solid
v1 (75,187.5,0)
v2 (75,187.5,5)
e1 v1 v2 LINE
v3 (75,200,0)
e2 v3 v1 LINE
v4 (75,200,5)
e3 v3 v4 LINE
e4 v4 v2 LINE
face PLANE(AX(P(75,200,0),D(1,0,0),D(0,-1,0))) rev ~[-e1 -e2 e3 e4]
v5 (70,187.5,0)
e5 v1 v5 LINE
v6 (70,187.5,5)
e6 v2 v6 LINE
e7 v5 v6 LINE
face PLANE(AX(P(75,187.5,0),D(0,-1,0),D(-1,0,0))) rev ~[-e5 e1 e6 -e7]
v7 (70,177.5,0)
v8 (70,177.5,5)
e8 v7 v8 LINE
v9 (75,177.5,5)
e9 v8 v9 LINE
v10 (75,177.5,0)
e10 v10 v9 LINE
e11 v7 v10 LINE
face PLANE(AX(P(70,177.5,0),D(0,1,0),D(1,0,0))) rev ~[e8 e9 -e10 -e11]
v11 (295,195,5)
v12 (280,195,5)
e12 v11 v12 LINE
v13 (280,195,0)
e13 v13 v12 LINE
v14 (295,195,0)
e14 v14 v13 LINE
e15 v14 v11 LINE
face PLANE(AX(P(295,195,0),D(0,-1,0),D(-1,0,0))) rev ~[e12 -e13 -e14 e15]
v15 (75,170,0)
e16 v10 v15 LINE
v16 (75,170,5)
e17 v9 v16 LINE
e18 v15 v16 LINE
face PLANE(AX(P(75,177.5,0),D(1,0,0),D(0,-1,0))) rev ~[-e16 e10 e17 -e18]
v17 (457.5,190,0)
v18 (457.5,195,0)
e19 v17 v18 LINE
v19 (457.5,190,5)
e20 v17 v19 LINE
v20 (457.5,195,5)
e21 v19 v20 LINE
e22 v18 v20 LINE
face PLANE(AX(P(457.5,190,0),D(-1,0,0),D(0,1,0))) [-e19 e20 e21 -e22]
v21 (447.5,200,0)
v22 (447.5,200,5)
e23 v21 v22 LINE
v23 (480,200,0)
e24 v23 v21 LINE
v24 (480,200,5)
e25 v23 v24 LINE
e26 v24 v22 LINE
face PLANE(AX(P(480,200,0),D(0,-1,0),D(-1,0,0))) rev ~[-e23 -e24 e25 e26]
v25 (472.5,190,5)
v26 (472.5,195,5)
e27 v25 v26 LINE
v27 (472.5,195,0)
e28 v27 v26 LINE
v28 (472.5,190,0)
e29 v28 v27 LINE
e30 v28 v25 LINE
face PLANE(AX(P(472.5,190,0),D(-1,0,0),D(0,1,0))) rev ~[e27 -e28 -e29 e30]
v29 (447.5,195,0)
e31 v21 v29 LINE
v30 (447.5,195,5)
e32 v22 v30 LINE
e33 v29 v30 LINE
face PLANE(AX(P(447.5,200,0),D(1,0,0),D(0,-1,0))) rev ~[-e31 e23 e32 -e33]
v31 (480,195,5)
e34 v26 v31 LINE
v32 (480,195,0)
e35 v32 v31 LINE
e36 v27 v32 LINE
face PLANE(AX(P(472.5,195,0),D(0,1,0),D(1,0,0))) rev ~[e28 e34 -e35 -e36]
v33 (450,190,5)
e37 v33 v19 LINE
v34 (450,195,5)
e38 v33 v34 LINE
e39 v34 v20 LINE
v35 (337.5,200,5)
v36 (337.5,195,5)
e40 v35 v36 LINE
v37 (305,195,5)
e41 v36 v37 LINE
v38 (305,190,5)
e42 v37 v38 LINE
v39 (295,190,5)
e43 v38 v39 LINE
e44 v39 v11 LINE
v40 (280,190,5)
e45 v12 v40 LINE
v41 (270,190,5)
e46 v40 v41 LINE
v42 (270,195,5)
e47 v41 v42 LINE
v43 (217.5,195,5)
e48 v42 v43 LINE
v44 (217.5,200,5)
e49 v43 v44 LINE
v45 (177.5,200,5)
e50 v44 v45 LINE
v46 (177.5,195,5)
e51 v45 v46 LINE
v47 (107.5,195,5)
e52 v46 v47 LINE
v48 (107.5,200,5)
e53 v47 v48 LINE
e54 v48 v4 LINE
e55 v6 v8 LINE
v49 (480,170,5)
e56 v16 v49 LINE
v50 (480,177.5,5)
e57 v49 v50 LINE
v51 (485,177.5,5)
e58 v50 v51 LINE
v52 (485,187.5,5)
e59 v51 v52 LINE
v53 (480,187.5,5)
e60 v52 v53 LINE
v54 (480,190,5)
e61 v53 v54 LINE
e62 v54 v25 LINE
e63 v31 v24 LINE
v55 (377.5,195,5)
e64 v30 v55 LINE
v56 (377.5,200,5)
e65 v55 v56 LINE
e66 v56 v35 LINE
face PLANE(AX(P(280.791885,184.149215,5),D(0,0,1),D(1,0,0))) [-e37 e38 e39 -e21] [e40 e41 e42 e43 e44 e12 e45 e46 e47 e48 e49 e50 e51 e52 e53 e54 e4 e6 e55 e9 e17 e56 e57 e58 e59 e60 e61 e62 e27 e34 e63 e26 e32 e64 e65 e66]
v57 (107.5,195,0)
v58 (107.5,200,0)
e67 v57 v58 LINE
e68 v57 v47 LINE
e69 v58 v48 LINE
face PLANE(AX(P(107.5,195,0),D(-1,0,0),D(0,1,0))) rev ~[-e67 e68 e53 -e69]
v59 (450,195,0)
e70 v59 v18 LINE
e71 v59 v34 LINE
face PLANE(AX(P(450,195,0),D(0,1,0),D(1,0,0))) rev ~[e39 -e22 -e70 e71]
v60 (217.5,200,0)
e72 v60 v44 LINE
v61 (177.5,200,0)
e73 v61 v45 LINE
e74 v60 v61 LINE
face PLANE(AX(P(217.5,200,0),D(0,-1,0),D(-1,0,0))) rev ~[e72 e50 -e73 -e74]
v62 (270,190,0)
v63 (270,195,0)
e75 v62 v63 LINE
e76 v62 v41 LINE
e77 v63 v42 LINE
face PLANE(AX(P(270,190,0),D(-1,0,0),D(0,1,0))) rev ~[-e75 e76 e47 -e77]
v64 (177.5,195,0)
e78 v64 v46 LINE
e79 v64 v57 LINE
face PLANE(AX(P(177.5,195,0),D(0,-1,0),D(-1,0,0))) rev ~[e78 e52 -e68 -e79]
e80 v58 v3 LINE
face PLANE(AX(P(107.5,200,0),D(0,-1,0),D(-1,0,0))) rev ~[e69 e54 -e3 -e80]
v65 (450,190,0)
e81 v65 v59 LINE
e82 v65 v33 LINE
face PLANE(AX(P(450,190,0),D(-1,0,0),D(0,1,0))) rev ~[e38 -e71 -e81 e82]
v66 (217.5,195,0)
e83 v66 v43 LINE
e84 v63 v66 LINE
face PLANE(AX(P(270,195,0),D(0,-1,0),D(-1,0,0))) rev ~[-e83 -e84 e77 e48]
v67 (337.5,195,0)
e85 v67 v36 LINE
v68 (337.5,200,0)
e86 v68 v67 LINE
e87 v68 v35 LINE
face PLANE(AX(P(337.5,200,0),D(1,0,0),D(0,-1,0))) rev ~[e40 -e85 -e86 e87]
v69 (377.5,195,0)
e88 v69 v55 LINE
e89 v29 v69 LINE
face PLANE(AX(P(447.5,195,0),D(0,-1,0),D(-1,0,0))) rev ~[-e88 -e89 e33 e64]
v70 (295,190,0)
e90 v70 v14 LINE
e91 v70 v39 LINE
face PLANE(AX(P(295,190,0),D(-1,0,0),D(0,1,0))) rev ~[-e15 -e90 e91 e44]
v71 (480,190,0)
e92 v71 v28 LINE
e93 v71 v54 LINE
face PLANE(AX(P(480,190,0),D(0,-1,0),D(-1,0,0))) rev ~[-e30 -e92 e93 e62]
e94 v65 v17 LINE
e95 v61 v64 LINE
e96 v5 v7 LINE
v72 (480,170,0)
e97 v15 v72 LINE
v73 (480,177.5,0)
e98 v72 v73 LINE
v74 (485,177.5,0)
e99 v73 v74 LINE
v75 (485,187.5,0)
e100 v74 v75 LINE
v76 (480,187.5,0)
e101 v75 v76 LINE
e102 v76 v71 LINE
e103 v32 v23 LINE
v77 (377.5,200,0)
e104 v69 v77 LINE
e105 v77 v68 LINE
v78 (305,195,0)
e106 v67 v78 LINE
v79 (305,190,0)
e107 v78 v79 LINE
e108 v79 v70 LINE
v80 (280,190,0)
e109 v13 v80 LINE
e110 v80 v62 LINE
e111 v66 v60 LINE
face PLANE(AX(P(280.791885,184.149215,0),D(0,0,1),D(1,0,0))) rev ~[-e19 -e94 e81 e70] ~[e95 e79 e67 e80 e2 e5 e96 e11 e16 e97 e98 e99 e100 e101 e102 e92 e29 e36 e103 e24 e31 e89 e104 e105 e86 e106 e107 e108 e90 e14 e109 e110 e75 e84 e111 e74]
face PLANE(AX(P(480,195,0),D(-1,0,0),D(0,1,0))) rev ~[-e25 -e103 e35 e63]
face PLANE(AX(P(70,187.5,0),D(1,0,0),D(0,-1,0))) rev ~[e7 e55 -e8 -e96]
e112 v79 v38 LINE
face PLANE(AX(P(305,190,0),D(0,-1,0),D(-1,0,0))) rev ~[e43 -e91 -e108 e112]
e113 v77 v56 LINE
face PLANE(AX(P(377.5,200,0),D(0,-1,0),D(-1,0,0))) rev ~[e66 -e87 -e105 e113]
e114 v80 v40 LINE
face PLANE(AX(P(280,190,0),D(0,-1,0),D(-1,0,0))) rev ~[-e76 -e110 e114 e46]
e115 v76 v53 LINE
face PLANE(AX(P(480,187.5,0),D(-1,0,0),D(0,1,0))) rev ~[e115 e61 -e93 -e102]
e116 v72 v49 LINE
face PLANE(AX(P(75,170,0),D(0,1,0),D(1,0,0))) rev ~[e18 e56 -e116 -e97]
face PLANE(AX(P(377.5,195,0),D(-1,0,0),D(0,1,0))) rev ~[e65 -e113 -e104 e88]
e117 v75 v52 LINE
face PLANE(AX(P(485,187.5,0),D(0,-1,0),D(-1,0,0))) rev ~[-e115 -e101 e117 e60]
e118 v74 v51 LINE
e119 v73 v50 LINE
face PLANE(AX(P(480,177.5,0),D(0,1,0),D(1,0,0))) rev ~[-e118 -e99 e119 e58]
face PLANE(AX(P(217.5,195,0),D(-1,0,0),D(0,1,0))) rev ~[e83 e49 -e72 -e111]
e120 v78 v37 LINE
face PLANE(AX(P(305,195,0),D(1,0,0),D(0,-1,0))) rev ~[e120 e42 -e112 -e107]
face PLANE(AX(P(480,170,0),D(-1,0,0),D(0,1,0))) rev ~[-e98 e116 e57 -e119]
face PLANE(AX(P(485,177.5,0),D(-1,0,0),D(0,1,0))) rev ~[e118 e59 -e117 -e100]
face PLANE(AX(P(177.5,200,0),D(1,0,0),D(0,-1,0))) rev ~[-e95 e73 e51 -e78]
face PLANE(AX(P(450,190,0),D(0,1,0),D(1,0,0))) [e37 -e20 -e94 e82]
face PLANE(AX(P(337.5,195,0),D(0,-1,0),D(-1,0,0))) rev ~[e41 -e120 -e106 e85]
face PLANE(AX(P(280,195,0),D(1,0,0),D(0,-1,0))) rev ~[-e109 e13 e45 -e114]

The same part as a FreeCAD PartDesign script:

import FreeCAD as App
import Part
import Sketcher
Q = App.Units.Quantity

doc = App.newDocument("Part")
params = doc.addObject("Spreadsheet::Sheet", "Params")
for row, (alias, value) in enumerate([
    ("sketch1_width", "5 mm"),
    ("sketch1_width2", "70 mm"),
    ("sketch1_width3", "40 mm"),
    ("sketch1_width4", "10 mm"),
    ("sketch1_width5", "15 mm"),
    ("pad1_length", "5 mm"),
], start=1):
    params.set(f"A{row}", alias)
    params.set(f"B{row}", "=" + value)
    params.setAlias(f"B{row}", alias)

body = doc.addObject("PartDesign::Body", "Body")

sketch1 = body.newObject("Sketcher::SketchObject", "Sketch")
sketch1.AttachmentSupport = (doc.getObject("XY_Plane"), [""])
sketch1.MapMode = "FlatFace"
sketch1.addGeometry(Part.LineSegment(App.Vector(480, 177.5, 0), App.Vector(485, 177.5, 0)), False)
sketch1.addGeometry(Part.LineSegment(App.Vector(485, 177.5, 0), App.Vector(485, 187.5, 0)), False)
sketch1.addGeometry(Part.LineSegment(App.Vector(485, 187.5, 0), App.Vector(480, 187.5, 0)), False)
sketch1.addGeometry(Part.LineSegment(App.Vector(480, 187.5, 0), App.Vector(480, 190, 0)), False)
sketch1.addGeometry(Part.LineSegment(App.Vector(480, 190, 0), App.Vector(472.5, 190, 0)), False)
sketch1.addGeometry(Part.LineSegment(App.Vector(472.5, 190, 0), App.Vector(472.5, 195, 0)), False)
sketch1.addGeometry(Part.LineSegment(App.Vector(472.5, 195, 0), App.Vector(480, 195, 0)), False)
sketch1.addGeometry(Part.LineSegment(App.Vector(480, 195, 0), App.Vector(480, 200, 0)), False)
sketch1.addGeometry(Part.LineSegment(App.Vector(480, 200, 0), App.Vector(447.5, 200, 0)), False)
sketch1.addGeometry(Part.LineSegment(App.Vector(447.5, 200, 0), App.Vector(447.5, 195, 0)), False)
sketch1.addGeometry(Part.LineSegment(App.Vector(447.5, 195, 0), App.Vector(377.5, 195, 0)), False)
sketch1.addGeometry(Part.LineSegment(App.Vector(377.5, 195, 0), App.Vector(377.5, 200, 0)), False)
sketch1.addGeometry(Part.LineSegment(App.Vector(377.5, 200, 0), App.Vector(337.5, 200, 0)), False)
sketch1.addGeometry(Part.LineSegment(App.Vector(337.5, 200, 0), App.Vector(337.5, 195, 0)), False)
sketch1.addGeometry(Part.LineSegment(App.Vector(337.5, 195, 0), App.Vector(305, 195, 0)), False)
sketch1.addGeometry(Part.LineSegment(App.Vector(305, 195, 0), App.Vector(305, 190, 0)), False)
sketch1.addGeometry(Part.LineSegment(App.Vector(305, 190, 0), App.Vector(295, 190, 0)), False)
sketch1.addGeometry(Part.LineSegment(App.Vector(295, 190, 0), App.Vector(295, 195, 0)), False)
sketch1.addGeometry(Part.LineSegment(App.Vector(295, 195, 0), App.Vector(280, 195, 0)), False)
sketch1.addGeometry(Part.LineSegment(App.Vector(280, 195, 0), App.Vector(280, 190, 0)), False)
sketch1.addGeometry(Part.LineSegment(App.Vector(280, 190, 0), App.Vector(270, 190, 0)), False)
sketch1.addGeometry(Part.LineSegment(App.Vector(270, 190, 0), App.Vector(270, 195, 0)), False)
sketch1.addGeometry(Part.LineSegment(App.Vector(270, 195, 0), App.Vector(217.5, 195, 0)), False)
sketch1.addGeometry(Part.LineSegment(App.Vector(217.5, 195, 0), App.Vector(217.5, 200, 0)), False)
sketch1.addGeometry(Part.LineSegment(App.Vector(217.5, 200, 0), App.Vector(177.5, 200, 0)), False)
sketch1.addGeometry(Part.LineSegment(App.Vector(177.5, 200, 0), App.Vector(177.5, 195, 0)), False)
sketch1.addGeometry(Part.LineSegment(App.Vector(177.5, 195, 0), App.Vector(107.5, 195, 0)), False)
sketch1.addGeometry(Part.LineSegment(App.Vector(107.5, 195, 0), App.Vector(107.5, 200, 0)), False)
sketch1.addGeometry(Part.LineSegment(App.Vector(107.5, 200, 0), App.Vector(75, 200, 0)), False)
sketch1.addGeometry(Part.LineSegment(App.Vector(75, 200, 0), App.Vector(75, 187.5, 0)), False)
sketch1.addGeometry(Part.LineSegment(App.Vector(75, 187.5, 0), App.Vector(70, 187.5, 0)), False)
sketch1.addGeometry(Part.LineSegment(App.Vector(70, 187.5, 0), App.Vector(70, 177.5, 0)), False)
sketch1.addGeometry(Part.LineSegment(App.Vector(70, 177.5, 0), App.Vector(75, 177.5, 0)), False)
sketch1.addGeometry(Part.LineSegment(App.Vector(75, 177.5, 0), App.Vector(75, 170, 0)), False)
sketch1.addGeometry(Part.LineSegment(App.Vector(75, 170, 0), App.Vector(480, 170, 0)), False)
sketch1.addGeometry(Part.LineSegment(App.Vector(480, 170, 0), App.Vector(480, 177.5, 0)), False)
sketch1.addGeometry(Part.LineSegment(App.Vector(457.5, 190, 0), App.Vector(450, 190, 0)), False)
sketch1.addGeometry(Part.LineSegment(App.Vector(450, 190, 0), App.Vector(450, 195, 0)), False)
sketch1.addGeometry(Part.LineSegment(App.Vector(450, 195, 0), App.Vector(457.5, 195, 0)), False)
sketch1.addGeometry(Part.LineSegment(App.Vector(457.5, 195, 0), App.Vector(457.5, 190, 0)), False)
sketch1.addConstraint(Sketcher.Constraint("Coincident", 0, 2, 1, 1))
sketch1.addConstraint(Sketcher.Constraint("Coincident", 1, 2, 2, 1))
sketch1.addConstraint(Sketcher.Constraint("Coincident", 2, 2, 3, 1))
sketch1.addConstraint(Sketcher.Constraint("Coincident", 3, 2, 4, 1))
sketch1.addConstraint(Sketcher.Constraint("Coincident", 4, 2, 5, 1))
sketch1.addConstraint(Sketcher.Constraint("Coincident", 5, 2, 6, 1))
sketch1.addConstraint(Sketcher.Constraint("Coincident", 6, 2, 7, 1))
sketch1.addConstraint(Sketcher.Constraint("Coincident", 7, 2, 8, 1))
sketch1.addConstraint(Sketcher.Constraint("Coincident", 8, 2, 9, 1))
sketch1.addConstraint(Sketcher.Constraint("Coincident", 9, 2, 10, 1))
sketch1.addConstraint(Sketcher.Constraint("Coincident", 10, 2, 11, 1))
sketch1.addConstraint(Sketcher.Constraint("Coincident", 11, 2, 12, 1))
sketch1.addConstraint(Sketcher.Constraint("Coincident", 12, 2, 13, 1))
sketch1.addConstraint(Sketcher.Constraint("Coincident", 13, 2, 14, 1))
sketch1.addConstraint(Sketcher.Constraint("Coincident", 14, 2, 15, 1))
sketch1.addConstraint(Sketcher.Constraint("Coincident", 15, 2, 16, 1))
sketch1.addConstraint(Sketcher.Constraint("Coincident", 16, 2, 17, 1))
sketch1.addConstraint(Sketcher.Constraint("Coincident", 17, 2, 18, 1))
sketch1.addConstraint(Sketcher.Constraint("Coincident", 18, 2, 19, 1))
sketch1.addConstraint(Sketcher.Constraint("Coincident", 19, 2, 20, 1))
sketch1.addConstraint(Sketcher.Constraint("Coincident", 20, 2, 21, 1))
sketch1.addConstraint(Sketcher.Constraint("Coincident", 21, 2, 22, 1))
sketch1.addConstraint(Sketcher.Constraint("Coincident", 22, 2, 23, 1))
sketch1.addConstraint(Sketcher.Constraint("Coincident", 23, 2, 24, 1))
sketch1.addConstraint(Sketcher.Constraint("Coincident", 24, 2, 25, 1))
sketch1.addConstraint(Sketcher.Constraint("Coincident", 25, 2, 26, 1))
sketch1.addConstraint(Sketcher.Constraint("Coincident", 26, 2, 27, 1))
sketch1.addConstraint(Sketcher.Constraint("Coincident", 27, 2, 28, 1))
sketch1.addConstraint(Sketcher.Constraint("Coincident", 28, 2, 29, 1))
sketch1.addConstraint(Sketcher.Constraint("Coincident", 29, 2, 30, 1))
sketch1.addConstraint(Sketcher.Constraint("Coincident", 30, 2, 31, 1))
sketch1.addConstraint(Sketcher.Constraint("Coincident", 31, 2, 32, 1))
sketch1.addConstraint(Sketcher.Constraint("Coincident", 32, 2, 33, 1))
sketch1.addConstraint(Sketcher.Constraint("Coincident", 33, 2, 34, 1))
sketch1.addConstraint(Sketcher.Constraint("Coincident", 34, 2, 35, 1))
sketch1.addConstraint(Sketcher.Constraint("Coincident", 35, 2, 0, 1))
sketch1.addConstraint(Sketcher.Constraint("Coincident", 36, 2, 37, 1))
sketch1.addConstraint(Sketcher.Constraint("Coincident", 37, 2, 38, 1))
sketch1.addConstraint(Sketcher.Constraint("Coincident", 38, 2, 39, 1))
sketch1.addConstraint(Sketcher.Constraint("Coincident", 39, 2, 36, 1))
sketch1.addConstraint(Sketcher.Constraint("Horizontal", 0))
sketch1.addConstraint(Sketcher.Constraint("Vertical", 1))
sketch1.addConstraint(Sketcher.Constraint("Horizontal", 2))
sketch1.addConstraint(Sketcher.Constraint("Vertical", 3))
sketch1.addConstraint(Sketcher.Constraint("Horizontal", 4))
sketch1.addConstraint(Sketcher.Constraint("Vertical", 5))
sketch1.addConstraint(Sketcher.Constraint("Horizontal", 6))
sketch1.addConstraint(Sketcher.Constraint("Vertical", 7))
sketch1.addConstraint(Sketcher.Constraint("Horizontal", 8))
sketch1.addConstraint(Sketcher.Constraint("Vertical", 9))
sketch1.addConstraint(Sketcher.Constraint("Horizontal", 10))
sketch1.addConstraint(Sketcher.Constraint("Vertical", 11))
sketch1.addConstraint(Sketcher.Constraint("Horizontal", 12))
sketch1.addConstraint(Sketcher.Constraint("Vertical", 13))
sketch1.addConstraint(Sketcher.Constraint("Horizontal", 14))
sketch1.addConstraint(Sketcher.Constraint("Vertical", 15))
sketch1.addConstraint(Sketcher.Constraint("Horizontal", 16))
sketch1.addConstraint(Sketcher.Constraint("Vertical", 17))
sketch1.addConstraint(Sketcher.Constraint("Horizontal", 18))
sketch1.addConstraint(Sketcher.Constraint("Vertical", 19))
sketch1.addConstraint(Sketcher.Constraint("Horizontal", 20))
sketch1.addConstraint(Sketcher.Constraint("Vertical", 21))
sketch1.addConstraint(Sketcher.Constraint("Horizontal", 22))
sketch1.addConstraint(Sketcher.Constraint("Vertical", 23))
sketch1.addConstraint(Sketcher.Constraint("Horizontal", 24))
sketch1.addConstraint(Sketcher.Constraint("Vertical", 25))
sketch1.addConstraint(Sketcher.Constraint("Horizontal", 26))
sketch1.addConstraint(Sketcher.Constraint("Vertical", 27))
sketch1.addConstraint(Sketcher.Constraint("Horizontal", 28))
sketch1.addConstraint(Sketcher.Constraint("Vertical", 29))
sketch1.addConstraint(Sketcher.Constraint("Horizontal", 30))
sketch1.addConstraint(Sketcher.Constraint("Vertical", 31))
sketch1.addConstraint(Sketcher.Constraint("Horizontal", 32))
sketch1.addConstraint(Sketcher.Constraint("Vertical", 33))
sketch1.addConstraint(Sketcher.Constraint("Horizontal", 34))
sketch1.addConstraint(Sketcher.Constraint("Vertical", 35))
sketch1.addConstraint(Sketcher.Constraint("Horizontal", 36))
sketch1.addConstraint(Sketcher.Constraint("Vertical", 37))
sketch1.addConstraint(Sketcher.Constraint("Horizontal", 38))
sketch1.addConstraint(Sketcher.Constraint("Vertical", 39))
sketch1.addConstraint(Sketcher.Constraint("Horizontal", 6, 2, 9, 2))
sketch1.addConstraint(Sketcher.Constraint("Horizontal", 8, 2, 11, 2))
sketch1.addConstraint(Sketcher.Constraint("Horizontal", 10, 2, 13, 2))
sketch1.addConstraint(Sketcher.Constraint("Horizontal", 4, 2, 15, 2))
sketch1.addConstraint(Sketcher.Constraint("Horizontal", 14, 2, 17, 2))
sketch1.addConstraint(Sketcher.Constraint("Horizontal", 16, 2, 19, 2))
sketch1.addConstraint(Sketcher.Constraint("Horizontal", 18, 2, 21, 2))
sketch1.addConstraint(Sketcher.Constraint("Horizontal", 12, 2, 23, 2))
sketch1.addConstraint(Sketcher.Constraint("Horizontal", 22, 2, 25, 2))
sketch1.addConstraint(Sketcher.Constraint("Horizontal", 24, 2, 27, 2))
sketch1.addConstraint(Sketcher.Constraint("Horizontal", 2, 2, 29, 2))
sketch1.addConstraint(Sketcher.Constraint("Horizontal", 0, 2, 31, 2))
sketch1.addConstraint(Sketcher.Constraint("Horizontal", 20, 2, 36, 2))
sketch1.addConstraint(Sketcher.Constraint("Horizontal", 26, 2, 37, 2))
sketch1.addConstraint(Sketcher.Constraint("Vertical", 3, 2, 6, 2))
sketch1.addConstraint(Sketcher.Constraint("Vertical", 29, 2, 32, 2))
sketch1.addConstraint(Sketcher.Constraint("Vertical", 7, 2, 34, 2))
sketch1.addConstraint(Sketcher.Constraint("Equal", 8, 14))
sketch1.addConstraint(Sketcher.Constraint("Equal", 16, 20))
sketch1.addConstraint(Sketcher.Constraint("Equal", 12, 24))
sketch1.addConstraint(Sketcher.Constraint("Equal", 10, 26))
sketch1.addConstraint(Sketcher.Constraint("Equal", 14, 28))
sketch1.addConstraint(Sketcher.Constraint("Equal", 2, 30))
sketch1.addConstraint(Sketcher.Constraint("Equal", 6, 36))
sketch1.addConstraint(Sketcher.Constraint("Equal", 20, 1))
sketch1.addConstraint(Sketcher.Constraint("Equal", 32, 5))
sketch1.addConstraint(Sketcher.Constraint("Equal", 5, 7))
sketch1.addConstraint(Sketcher.Constraint("Equal", 38, 33))
sketch1.addConstraint(Sketcher.Constraint("DistanceX", 0, 1, 0, 2, Q("5 mm")))
sketch1.addConstraint(Sketcher.Constraint("DistanceX", 10, 2, 10, 1, Q("70 mm")))
sketch1.addConstraint(Sketcher.Constraint("DistanceX", 12, 2, 12, 1, Q("40 mm")))
sketch1.addConstraint(Sketcher.Constraint("DistanceX", 16, 2, 16, 1, Q("10 mm")))
sketch1.addConstraint(Sketcher.Constraint("DistanceX", 18, 2, 18, 1, Q("15 mm")))
sketch1.addConstraint(Sketcher.Constraint("DistanceX", 34, 1, 34, 2, Q("405 mm")))
sketch1.addConstraint(Sketcher.Constraint("DistanceX", 4, 2, 4, 1, Q("7.5 mm")))
sketch1.addConstraint(Sketcher.Constraint("DistanceX", 8, 2, 8, 1, Q("32.5 mm")))
sketch1.addConstraint(Sketcher.Constraint("DistanceY", 3, 1, 3, 2, Q("2.5 mm")))
sketch1.addConstraint(Sketcher.Constraint("DistanceX", -1, 1, 0, 2, Q("485 mm")))
sketch1.addConstraint(Sketcher.Constraint("DistanceY", -1, 1, 3, 2, Q("190 mm")))
sketch1.addConstraint(Sketcher.Constraint("DistanceX", -1, 1, 36, 2, Q("450 mm")))
sketch1.setExpression("Constraints[108]", "Params.sketch1_width")
sketch1.setExpression("Constraints[109]", "Params.sketch1_width2")
sketch1.setExpression("Constraints[110]", "Params.sketch1_width3")
sketch1.setExpression("Constraints[111]", "Params.sketch1_width4")
sketch1.setExpression("Constraints[112]", "Params.sketch1_width5")
pad1 = body.newObject("PartDesign::Pad", "Pad")
pad1.Profile = sketch1
pad1.setExpression("Length", "Params.pad1_length")

doc.recompute()
